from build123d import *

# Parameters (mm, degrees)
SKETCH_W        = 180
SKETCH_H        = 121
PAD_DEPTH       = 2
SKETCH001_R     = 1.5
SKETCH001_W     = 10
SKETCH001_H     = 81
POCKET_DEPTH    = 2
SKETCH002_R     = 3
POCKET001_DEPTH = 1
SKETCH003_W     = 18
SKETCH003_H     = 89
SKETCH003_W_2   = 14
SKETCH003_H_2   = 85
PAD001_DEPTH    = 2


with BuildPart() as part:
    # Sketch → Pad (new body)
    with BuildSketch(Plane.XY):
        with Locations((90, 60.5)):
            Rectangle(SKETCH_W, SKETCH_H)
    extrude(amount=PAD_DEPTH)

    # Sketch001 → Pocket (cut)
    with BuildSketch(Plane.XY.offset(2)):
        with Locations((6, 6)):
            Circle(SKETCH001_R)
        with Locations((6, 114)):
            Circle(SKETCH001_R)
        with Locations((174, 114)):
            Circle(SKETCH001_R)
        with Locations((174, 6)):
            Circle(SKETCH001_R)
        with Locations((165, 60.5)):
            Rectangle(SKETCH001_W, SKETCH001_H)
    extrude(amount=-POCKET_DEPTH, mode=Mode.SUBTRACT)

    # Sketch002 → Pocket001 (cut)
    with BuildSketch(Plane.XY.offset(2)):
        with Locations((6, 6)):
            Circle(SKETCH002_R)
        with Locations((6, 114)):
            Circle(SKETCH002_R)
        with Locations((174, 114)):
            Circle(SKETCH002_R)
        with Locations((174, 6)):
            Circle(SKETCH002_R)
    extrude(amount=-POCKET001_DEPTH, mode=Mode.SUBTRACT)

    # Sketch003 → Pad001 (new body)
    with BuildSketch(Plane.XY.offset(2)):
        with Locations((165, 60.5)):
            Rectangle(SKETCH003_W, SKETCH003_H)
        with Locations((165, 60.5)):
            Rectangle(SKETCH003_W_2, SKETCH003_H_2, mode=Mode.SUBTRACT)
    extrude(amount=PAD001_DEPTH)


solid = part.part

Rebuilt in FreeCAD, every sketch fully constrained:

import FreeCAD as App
import Part
import Sketcher
from FreeCAD import Vector
Q = App.Units.Quantity

doc = App.newDocument("Part")
body = doc.addObject("PartDesign::Body", "Body")

sketch1 = body.newObject("Sketcher::SketchObject", "Sketch")
sketch1.AttachmentSupport = (doc.getObject("XY_Plane"), [""])
sketch1.MapMode = "FlatFace"
sketch1.addGeometry(Part.LineSegment(Vector(0, 121, 0), Vector(0, 0, 0)), False)
sketch1.addGeometry(Part.LineSegment(Vector(0, 0, 0), Vector(180, 0, 0)), False)
sketch1.addGeometry(Part.LineSegment(Vector(180, 0, 0), Vector(180, 121, 0)), False)
sketch1.addGeometry(Part.LineSegment(Vector(180, 121, 0), Vector(0, 121, 0)), False)
sketch1.addConstraint(Sketcher.Constraint("Coincident", 0, 2, 1, 1))
sketch1.addConstraint(Sketcher.Constraint("Coincident", 1, 2, 2, 1))
sketch1.addConstraint(Sketcher.Constraint("Coincident", 2, 2, 3, 1))
sketch1.addConstraint(Sketcher.Constraint("Coincident", 3, 2, 0, 1))
sketch1.addConstraint(Sketcher.Constraint("Vertical", 0))
sketch1.addConstraint(Sketcher.Constraint("Horizontal", 1))
sketch1.addConstraint(Sketcher.Constraint("Vertical", 2))
sketch1.addConstraint(Sketcher.Constraint("Horizontal", 3))
sketch1.addConstraint(Sketcher.Constraint("Coincident", 0, 2, -1, 1))
sketch1.addConstraint(Sketcher.Constraint("DistanceX", 1, 1, 1, 2, Q("180 mm")))
sketch1.addConstraint(Sketcher.Constraint("DistanceY", 0, 2, 0, 1, Q("121 mm")))
pad1 = body.newObject("PartDesign::Pad", "Pad")
pad1.Profile = sketch1
pad1.Length = 2

sketch2 = body.newObject("Sketcher::SketchObject", "Sketch001")
sketch2.AttachmentSupport = (doc.getObject("XY_Plane"), [""])
sketch2.MapMode = "FlatFace"
sketch2.AttachmentOffset = App.Placement(Vector(0, 0, 2), App.Rotation())
sketch2.addGeometry(Part.Circle(Vector(6, 6, 0), Vector(0, 0, 1), 1.5), False)
sketch2.addGeometry(Part.Circle(Vector(6, 114, 0), Vector(0, 0, 1), 1.5), False)
sketch2.addGeometry(Part.Circle(Vector(174, 114, 0), Vector(0, 0, 1), 1.5), False)
sketch2.addGeometry(Part.Circle(Vector(174, 6, 0), Vector(0, 0, 1), 1.5), False)
sketch2.addGeometry(Part.LineSegment(Vector(160, 101, 0), Vector(160, 20, 0)), False)
sketch2.addGeometry(Part.LineSegment(Vector(160, 20, 0), Vector(170, 20, 0)), False)
sketch2.addGeometry(Part.LineSegment(Vector(170, 20, 0), Vector(170, 101, 0)), False)
sketch2.addGeometry(Part.LineSegment(Vector(170, 101, 0), Vector(160, 101, 0)), False)
sketch2.addConstraint(Sketcher.Constraint("Coincident", 4, 2, 5, 1))
sketch2.addConstraint(Sketcher.Constraint("Coincident", 5, 2, 6, 1))
sketch2.addConstraint(Sketcher.Constraint("Coincident", 6, 2, 7, 1))
sketch2.addConstraint(Sketcher.Constraint("Coincident", 7, 2, 4, 1))
sketch2.addConstraint(Sketcher.Constraint("Vertical", 4))
sketch2.addConstraint(Sketcher.Constraint("Horizontal", 5))
sketch2.addConstraint(Sketcher.Constraint("Vertical", 6))
sketch2.addConstraint(Sketcher.Constraint("Horizontal", 7))
sketch2.addConstraint(Sketcher.Constraint("Equal", 0, 1))
sketch2.addConstraint(Sketcher.Constraint("Equal", 1, 2))
sketch2.addConstraint(Sketcher.Constraint("Equal", 2, 3))
sketch2.addConstraint(Sketcher.Constraint("Horizontal", 1, 3, 2, 3))
sketch2.addConstraint(Sketcher.Constraint("Horizontal", 0, 3, 3, 3))
sketch2.addConstraint(Sketcher.Constraint("Vertical", 0, 3, 1, 3))
sketch2.addConstraint(Sketcher.Constraint("Vertical", 2, 3, 3, 3))
sketch2.addConstraint(Sketcher.Constraint("Diameter", 0, Q("3 mm")))
sketch2.addConstraint(Sketcher.Constraint("DistanceX", 5, 1, 5, 2, Q("10 mm")))
sketch2.addConstraint(Sketcher.Constraint("DistanceY", 4, 2, 4, 1, Q("81 mm")))
sketch2.addConstraint(Sketcher.Constraint("DistanceX", -1, 1, 0, 3, Q("6 mm")))
sketch2.addConstraint(Sketcher.Constraint("DistanceY", -1, 1, 0, 3, Q("6 mm")))
sketch2.addConstraint(Sketcher.Constraint("DistanceY", -1, 1, 1, 3, Q("114 mm")))
sketch2.addConstraint(Sketcher.Constraint("DistanceX", -1, 1, 2, 3, Q("174 mm")))
sketch2.addConstraint(Sketcher.Constraint("DistanceX", -1, 1, 4, 2, Q("160 mm")))
sketch2.addConstraint(Sketcher.Constraint("DistanceY", -1, 1, 4, 2, Q("20 mm")))
pocket1 = body.newObject("PartDesign::Pocket", "Pocket")
pocket1.Profile = sketch2
pocket1.Length = 2

sketch3 = body.newObject("Sketcher::SketchObject", "Sketch002")
sketch3.AttachmentSupport = (doc.getObject("XY_Plane"), [""])
sketch3.MapMode = "FlatFace"
sketch3.AttachmentOffset = App.Placement(Vector(0, 0, 2), App.Rotation())
sketch3.addGeometry(Part.Circle(Vector(6, 6, 0), Vector(0, 0, 1), 3), False)
sketch3.addGeometry(Part.Circle(Vector(6, 114, 0), Vector(0, 0, 1), 3), False)
sketch3.addGeometry(Part.Circle(Vector(174, 114, 0), Vector(0, 0, 1), 3), False)
sketch3.addGeometry(Part.Circle(Vector(174, 6, 0), Vector(0, 0, 1), 3), False)
sketch3.addConstraint(Sketcher.Constraint("Equal", 0, 1))
sketch3.addConstraint(Sketcher.Constraint("Equal", 1, 2))
sketch3.addConstraint(Sketcher.Constraint("Equal", 2, 3))
sketch3.addConstraint(Sketcher.Constraint("Horizontal", 1, 3, 2, 3))
sketch3.addConstraint(Sketcher.Constraint("Horizontal", 0, 3, 3, 3))
sketch3.addConstraint(Sketcher.Constraint("Vertical", 0, 3, 1, 3))
sketch3.addConstraint(Sketcher.Constraint("Vertical", 2, 3, 3, 3))
sketch3.addConstraint(Sketcher.Constraint("Diameter", 0, Q("6 mm")))
sketch3.addConstraint(Sketcher.Constraint("DistanceX", -1, 1, 0, 3, Q("6 mm")))
sketch3.addConstraint(Sketcher.Constraint("DistanceY", -1, 1, 0, 3, Q("6 mm")))
sketch3.addConstraint(Sketcher.Constraint("DistanceY", -1, 1, 1, 3, Q("114 mm")))
sketch3.addConstraint(Sketcher.Constraint("DistanceX", -1, 1, 2, 3, Q("174 mm")))
pocket2 = body.newObject("PartDesign::Pocket", "Pocket001")
pocket2.Profile = sketch3
pocket2.Length = 1

sketch4 = body.newObject("Sketcher::SketchObject", "Sketch003")
sketch4.AttachmentSupport = (doc.getObject("XY_Plane"), [""])
sketch4.MapMode = "FlatFace"
sketch4.AttachmentOffset = App.Placement(Vector(0, 0, 2), App.Rotation())
sketch4.addGeometry(Part.LineSegment(Vector(156, 105, 0), Vector(156, 16, 0)), False)
sketch4.addGeometry(Part.LineSegment(Vector(156, 16, 0), Vector(174, 16, 0)), False)
sketch4.addGeometry(Part.LineSegment(Vector(174, 16, 0), Vector(174, 105, 0)), False)
sketch4.addGeometry(Part.LineSegment(Vector(174, 105, 0), Vector(156, 105, 0)), False)
sketch4.addGeometry(Part.LineSegment(Vector(172, 18, 0), Vector(158, 18, 0)), False)
sketch4.addGeometry(Part.LineSegment(Vector(158, 18, 0), Vector(158, 103, 0)), False)
sketch4.addGeometry(Part.LineSegment(Vector(158, 103, 0), Vector(172, 103, 0)), False)
sketch4.addGeometry(Part.LineSegment(Vector(172, 103, 0), Vector(172, 18, 0)), False)
sketch4.addConstraint(Sketcher.Constraint("Coincident", 0, 2, 1, 1))
sketch4.addConstraint(Sketcher.Constraint("Coincident", 1, 2, 2, 1))
sketch4.addConstraint(Sketcher.Constraint("Coincident", 2, 2, 3, 1))
sketch4.addConstraint(Sketcher.Constraint("Coincident", 3, 2, 0, 1))
sketch4.addConstraint(Sketcher.Constraint("Coincident", 4, 2, 5, 1))
sketch4.addConstraint(Sketcher.Constraint("Coincident", 5, 2, 6, 1))
sketch4.addConstraint(Sketcher.Constraint("Coincident", 6, 2, 7, 1))
sketch4.addConstraint(Sketcher.Constraint("Coincident", 7, 2, 4, 1))
sketch4.addConstraint(Sketcher.Constraint("Vertical", 0))
sketch4.addConstraint(Sketcher.Constraint("Horizontal", 1))
sketch4.addConstraint(Sketcher.Constraint("Vertical", 2))
sketch4.addConstraint(Sketcher.Constraint("Horizontal", 3))
sketch4.addConstraint(Sketcher.Constraint("Horizontal", 4))
sketch4.addConstraint(Sketcher.Constraint("Vertical", 5))
sketch4.addConstraint(Sketcher.Constraint("Horizontal", 6))
sketch4.addConstraint(Sketcher.Constraint("Vertical", 7))
sketch4.addConstraint(Sketcher.Constraint("DistanceX", 1, 1, 1, 2, Q("18 mm")))
sketch4.addConstraint(Sketcher.Constraint("DistanceX", 4, 2, 4, 1, Q("14 mm")))
sketch4.addConstraint(Sketcher.Constraint("DistanceY", 0, 2, 0, 1, Q("89 mm")))
sketch4.addConstraint(Sketcher.Constraint("DistanceY", 5, 1, 5, 2, Q("85 mm")))
sketch4.addConstraint(Sketcher.Constraint("DistanceX", -1, 1, 0, 2, Q("156 mm")))
sketch4.addConstraint(Sketcher.Constraint("DistanceY", -1, 1, 0, 2, Q("16 mm")))
sketch4.addConstraint(Sketcher.Constraint("DistanceX", -1, 1, 4, 2, Q("158 mm")))
sketch4.addConstraint(Sketcher.Constraint("DistanceY", -1, 1, 4, 2, Q("18 mm")))
pad2 = body.newObject("PartDesign::Pad", "Pad001")
pad2.Profile = sketch4
pad2.Length = 2

doc.recompute()
